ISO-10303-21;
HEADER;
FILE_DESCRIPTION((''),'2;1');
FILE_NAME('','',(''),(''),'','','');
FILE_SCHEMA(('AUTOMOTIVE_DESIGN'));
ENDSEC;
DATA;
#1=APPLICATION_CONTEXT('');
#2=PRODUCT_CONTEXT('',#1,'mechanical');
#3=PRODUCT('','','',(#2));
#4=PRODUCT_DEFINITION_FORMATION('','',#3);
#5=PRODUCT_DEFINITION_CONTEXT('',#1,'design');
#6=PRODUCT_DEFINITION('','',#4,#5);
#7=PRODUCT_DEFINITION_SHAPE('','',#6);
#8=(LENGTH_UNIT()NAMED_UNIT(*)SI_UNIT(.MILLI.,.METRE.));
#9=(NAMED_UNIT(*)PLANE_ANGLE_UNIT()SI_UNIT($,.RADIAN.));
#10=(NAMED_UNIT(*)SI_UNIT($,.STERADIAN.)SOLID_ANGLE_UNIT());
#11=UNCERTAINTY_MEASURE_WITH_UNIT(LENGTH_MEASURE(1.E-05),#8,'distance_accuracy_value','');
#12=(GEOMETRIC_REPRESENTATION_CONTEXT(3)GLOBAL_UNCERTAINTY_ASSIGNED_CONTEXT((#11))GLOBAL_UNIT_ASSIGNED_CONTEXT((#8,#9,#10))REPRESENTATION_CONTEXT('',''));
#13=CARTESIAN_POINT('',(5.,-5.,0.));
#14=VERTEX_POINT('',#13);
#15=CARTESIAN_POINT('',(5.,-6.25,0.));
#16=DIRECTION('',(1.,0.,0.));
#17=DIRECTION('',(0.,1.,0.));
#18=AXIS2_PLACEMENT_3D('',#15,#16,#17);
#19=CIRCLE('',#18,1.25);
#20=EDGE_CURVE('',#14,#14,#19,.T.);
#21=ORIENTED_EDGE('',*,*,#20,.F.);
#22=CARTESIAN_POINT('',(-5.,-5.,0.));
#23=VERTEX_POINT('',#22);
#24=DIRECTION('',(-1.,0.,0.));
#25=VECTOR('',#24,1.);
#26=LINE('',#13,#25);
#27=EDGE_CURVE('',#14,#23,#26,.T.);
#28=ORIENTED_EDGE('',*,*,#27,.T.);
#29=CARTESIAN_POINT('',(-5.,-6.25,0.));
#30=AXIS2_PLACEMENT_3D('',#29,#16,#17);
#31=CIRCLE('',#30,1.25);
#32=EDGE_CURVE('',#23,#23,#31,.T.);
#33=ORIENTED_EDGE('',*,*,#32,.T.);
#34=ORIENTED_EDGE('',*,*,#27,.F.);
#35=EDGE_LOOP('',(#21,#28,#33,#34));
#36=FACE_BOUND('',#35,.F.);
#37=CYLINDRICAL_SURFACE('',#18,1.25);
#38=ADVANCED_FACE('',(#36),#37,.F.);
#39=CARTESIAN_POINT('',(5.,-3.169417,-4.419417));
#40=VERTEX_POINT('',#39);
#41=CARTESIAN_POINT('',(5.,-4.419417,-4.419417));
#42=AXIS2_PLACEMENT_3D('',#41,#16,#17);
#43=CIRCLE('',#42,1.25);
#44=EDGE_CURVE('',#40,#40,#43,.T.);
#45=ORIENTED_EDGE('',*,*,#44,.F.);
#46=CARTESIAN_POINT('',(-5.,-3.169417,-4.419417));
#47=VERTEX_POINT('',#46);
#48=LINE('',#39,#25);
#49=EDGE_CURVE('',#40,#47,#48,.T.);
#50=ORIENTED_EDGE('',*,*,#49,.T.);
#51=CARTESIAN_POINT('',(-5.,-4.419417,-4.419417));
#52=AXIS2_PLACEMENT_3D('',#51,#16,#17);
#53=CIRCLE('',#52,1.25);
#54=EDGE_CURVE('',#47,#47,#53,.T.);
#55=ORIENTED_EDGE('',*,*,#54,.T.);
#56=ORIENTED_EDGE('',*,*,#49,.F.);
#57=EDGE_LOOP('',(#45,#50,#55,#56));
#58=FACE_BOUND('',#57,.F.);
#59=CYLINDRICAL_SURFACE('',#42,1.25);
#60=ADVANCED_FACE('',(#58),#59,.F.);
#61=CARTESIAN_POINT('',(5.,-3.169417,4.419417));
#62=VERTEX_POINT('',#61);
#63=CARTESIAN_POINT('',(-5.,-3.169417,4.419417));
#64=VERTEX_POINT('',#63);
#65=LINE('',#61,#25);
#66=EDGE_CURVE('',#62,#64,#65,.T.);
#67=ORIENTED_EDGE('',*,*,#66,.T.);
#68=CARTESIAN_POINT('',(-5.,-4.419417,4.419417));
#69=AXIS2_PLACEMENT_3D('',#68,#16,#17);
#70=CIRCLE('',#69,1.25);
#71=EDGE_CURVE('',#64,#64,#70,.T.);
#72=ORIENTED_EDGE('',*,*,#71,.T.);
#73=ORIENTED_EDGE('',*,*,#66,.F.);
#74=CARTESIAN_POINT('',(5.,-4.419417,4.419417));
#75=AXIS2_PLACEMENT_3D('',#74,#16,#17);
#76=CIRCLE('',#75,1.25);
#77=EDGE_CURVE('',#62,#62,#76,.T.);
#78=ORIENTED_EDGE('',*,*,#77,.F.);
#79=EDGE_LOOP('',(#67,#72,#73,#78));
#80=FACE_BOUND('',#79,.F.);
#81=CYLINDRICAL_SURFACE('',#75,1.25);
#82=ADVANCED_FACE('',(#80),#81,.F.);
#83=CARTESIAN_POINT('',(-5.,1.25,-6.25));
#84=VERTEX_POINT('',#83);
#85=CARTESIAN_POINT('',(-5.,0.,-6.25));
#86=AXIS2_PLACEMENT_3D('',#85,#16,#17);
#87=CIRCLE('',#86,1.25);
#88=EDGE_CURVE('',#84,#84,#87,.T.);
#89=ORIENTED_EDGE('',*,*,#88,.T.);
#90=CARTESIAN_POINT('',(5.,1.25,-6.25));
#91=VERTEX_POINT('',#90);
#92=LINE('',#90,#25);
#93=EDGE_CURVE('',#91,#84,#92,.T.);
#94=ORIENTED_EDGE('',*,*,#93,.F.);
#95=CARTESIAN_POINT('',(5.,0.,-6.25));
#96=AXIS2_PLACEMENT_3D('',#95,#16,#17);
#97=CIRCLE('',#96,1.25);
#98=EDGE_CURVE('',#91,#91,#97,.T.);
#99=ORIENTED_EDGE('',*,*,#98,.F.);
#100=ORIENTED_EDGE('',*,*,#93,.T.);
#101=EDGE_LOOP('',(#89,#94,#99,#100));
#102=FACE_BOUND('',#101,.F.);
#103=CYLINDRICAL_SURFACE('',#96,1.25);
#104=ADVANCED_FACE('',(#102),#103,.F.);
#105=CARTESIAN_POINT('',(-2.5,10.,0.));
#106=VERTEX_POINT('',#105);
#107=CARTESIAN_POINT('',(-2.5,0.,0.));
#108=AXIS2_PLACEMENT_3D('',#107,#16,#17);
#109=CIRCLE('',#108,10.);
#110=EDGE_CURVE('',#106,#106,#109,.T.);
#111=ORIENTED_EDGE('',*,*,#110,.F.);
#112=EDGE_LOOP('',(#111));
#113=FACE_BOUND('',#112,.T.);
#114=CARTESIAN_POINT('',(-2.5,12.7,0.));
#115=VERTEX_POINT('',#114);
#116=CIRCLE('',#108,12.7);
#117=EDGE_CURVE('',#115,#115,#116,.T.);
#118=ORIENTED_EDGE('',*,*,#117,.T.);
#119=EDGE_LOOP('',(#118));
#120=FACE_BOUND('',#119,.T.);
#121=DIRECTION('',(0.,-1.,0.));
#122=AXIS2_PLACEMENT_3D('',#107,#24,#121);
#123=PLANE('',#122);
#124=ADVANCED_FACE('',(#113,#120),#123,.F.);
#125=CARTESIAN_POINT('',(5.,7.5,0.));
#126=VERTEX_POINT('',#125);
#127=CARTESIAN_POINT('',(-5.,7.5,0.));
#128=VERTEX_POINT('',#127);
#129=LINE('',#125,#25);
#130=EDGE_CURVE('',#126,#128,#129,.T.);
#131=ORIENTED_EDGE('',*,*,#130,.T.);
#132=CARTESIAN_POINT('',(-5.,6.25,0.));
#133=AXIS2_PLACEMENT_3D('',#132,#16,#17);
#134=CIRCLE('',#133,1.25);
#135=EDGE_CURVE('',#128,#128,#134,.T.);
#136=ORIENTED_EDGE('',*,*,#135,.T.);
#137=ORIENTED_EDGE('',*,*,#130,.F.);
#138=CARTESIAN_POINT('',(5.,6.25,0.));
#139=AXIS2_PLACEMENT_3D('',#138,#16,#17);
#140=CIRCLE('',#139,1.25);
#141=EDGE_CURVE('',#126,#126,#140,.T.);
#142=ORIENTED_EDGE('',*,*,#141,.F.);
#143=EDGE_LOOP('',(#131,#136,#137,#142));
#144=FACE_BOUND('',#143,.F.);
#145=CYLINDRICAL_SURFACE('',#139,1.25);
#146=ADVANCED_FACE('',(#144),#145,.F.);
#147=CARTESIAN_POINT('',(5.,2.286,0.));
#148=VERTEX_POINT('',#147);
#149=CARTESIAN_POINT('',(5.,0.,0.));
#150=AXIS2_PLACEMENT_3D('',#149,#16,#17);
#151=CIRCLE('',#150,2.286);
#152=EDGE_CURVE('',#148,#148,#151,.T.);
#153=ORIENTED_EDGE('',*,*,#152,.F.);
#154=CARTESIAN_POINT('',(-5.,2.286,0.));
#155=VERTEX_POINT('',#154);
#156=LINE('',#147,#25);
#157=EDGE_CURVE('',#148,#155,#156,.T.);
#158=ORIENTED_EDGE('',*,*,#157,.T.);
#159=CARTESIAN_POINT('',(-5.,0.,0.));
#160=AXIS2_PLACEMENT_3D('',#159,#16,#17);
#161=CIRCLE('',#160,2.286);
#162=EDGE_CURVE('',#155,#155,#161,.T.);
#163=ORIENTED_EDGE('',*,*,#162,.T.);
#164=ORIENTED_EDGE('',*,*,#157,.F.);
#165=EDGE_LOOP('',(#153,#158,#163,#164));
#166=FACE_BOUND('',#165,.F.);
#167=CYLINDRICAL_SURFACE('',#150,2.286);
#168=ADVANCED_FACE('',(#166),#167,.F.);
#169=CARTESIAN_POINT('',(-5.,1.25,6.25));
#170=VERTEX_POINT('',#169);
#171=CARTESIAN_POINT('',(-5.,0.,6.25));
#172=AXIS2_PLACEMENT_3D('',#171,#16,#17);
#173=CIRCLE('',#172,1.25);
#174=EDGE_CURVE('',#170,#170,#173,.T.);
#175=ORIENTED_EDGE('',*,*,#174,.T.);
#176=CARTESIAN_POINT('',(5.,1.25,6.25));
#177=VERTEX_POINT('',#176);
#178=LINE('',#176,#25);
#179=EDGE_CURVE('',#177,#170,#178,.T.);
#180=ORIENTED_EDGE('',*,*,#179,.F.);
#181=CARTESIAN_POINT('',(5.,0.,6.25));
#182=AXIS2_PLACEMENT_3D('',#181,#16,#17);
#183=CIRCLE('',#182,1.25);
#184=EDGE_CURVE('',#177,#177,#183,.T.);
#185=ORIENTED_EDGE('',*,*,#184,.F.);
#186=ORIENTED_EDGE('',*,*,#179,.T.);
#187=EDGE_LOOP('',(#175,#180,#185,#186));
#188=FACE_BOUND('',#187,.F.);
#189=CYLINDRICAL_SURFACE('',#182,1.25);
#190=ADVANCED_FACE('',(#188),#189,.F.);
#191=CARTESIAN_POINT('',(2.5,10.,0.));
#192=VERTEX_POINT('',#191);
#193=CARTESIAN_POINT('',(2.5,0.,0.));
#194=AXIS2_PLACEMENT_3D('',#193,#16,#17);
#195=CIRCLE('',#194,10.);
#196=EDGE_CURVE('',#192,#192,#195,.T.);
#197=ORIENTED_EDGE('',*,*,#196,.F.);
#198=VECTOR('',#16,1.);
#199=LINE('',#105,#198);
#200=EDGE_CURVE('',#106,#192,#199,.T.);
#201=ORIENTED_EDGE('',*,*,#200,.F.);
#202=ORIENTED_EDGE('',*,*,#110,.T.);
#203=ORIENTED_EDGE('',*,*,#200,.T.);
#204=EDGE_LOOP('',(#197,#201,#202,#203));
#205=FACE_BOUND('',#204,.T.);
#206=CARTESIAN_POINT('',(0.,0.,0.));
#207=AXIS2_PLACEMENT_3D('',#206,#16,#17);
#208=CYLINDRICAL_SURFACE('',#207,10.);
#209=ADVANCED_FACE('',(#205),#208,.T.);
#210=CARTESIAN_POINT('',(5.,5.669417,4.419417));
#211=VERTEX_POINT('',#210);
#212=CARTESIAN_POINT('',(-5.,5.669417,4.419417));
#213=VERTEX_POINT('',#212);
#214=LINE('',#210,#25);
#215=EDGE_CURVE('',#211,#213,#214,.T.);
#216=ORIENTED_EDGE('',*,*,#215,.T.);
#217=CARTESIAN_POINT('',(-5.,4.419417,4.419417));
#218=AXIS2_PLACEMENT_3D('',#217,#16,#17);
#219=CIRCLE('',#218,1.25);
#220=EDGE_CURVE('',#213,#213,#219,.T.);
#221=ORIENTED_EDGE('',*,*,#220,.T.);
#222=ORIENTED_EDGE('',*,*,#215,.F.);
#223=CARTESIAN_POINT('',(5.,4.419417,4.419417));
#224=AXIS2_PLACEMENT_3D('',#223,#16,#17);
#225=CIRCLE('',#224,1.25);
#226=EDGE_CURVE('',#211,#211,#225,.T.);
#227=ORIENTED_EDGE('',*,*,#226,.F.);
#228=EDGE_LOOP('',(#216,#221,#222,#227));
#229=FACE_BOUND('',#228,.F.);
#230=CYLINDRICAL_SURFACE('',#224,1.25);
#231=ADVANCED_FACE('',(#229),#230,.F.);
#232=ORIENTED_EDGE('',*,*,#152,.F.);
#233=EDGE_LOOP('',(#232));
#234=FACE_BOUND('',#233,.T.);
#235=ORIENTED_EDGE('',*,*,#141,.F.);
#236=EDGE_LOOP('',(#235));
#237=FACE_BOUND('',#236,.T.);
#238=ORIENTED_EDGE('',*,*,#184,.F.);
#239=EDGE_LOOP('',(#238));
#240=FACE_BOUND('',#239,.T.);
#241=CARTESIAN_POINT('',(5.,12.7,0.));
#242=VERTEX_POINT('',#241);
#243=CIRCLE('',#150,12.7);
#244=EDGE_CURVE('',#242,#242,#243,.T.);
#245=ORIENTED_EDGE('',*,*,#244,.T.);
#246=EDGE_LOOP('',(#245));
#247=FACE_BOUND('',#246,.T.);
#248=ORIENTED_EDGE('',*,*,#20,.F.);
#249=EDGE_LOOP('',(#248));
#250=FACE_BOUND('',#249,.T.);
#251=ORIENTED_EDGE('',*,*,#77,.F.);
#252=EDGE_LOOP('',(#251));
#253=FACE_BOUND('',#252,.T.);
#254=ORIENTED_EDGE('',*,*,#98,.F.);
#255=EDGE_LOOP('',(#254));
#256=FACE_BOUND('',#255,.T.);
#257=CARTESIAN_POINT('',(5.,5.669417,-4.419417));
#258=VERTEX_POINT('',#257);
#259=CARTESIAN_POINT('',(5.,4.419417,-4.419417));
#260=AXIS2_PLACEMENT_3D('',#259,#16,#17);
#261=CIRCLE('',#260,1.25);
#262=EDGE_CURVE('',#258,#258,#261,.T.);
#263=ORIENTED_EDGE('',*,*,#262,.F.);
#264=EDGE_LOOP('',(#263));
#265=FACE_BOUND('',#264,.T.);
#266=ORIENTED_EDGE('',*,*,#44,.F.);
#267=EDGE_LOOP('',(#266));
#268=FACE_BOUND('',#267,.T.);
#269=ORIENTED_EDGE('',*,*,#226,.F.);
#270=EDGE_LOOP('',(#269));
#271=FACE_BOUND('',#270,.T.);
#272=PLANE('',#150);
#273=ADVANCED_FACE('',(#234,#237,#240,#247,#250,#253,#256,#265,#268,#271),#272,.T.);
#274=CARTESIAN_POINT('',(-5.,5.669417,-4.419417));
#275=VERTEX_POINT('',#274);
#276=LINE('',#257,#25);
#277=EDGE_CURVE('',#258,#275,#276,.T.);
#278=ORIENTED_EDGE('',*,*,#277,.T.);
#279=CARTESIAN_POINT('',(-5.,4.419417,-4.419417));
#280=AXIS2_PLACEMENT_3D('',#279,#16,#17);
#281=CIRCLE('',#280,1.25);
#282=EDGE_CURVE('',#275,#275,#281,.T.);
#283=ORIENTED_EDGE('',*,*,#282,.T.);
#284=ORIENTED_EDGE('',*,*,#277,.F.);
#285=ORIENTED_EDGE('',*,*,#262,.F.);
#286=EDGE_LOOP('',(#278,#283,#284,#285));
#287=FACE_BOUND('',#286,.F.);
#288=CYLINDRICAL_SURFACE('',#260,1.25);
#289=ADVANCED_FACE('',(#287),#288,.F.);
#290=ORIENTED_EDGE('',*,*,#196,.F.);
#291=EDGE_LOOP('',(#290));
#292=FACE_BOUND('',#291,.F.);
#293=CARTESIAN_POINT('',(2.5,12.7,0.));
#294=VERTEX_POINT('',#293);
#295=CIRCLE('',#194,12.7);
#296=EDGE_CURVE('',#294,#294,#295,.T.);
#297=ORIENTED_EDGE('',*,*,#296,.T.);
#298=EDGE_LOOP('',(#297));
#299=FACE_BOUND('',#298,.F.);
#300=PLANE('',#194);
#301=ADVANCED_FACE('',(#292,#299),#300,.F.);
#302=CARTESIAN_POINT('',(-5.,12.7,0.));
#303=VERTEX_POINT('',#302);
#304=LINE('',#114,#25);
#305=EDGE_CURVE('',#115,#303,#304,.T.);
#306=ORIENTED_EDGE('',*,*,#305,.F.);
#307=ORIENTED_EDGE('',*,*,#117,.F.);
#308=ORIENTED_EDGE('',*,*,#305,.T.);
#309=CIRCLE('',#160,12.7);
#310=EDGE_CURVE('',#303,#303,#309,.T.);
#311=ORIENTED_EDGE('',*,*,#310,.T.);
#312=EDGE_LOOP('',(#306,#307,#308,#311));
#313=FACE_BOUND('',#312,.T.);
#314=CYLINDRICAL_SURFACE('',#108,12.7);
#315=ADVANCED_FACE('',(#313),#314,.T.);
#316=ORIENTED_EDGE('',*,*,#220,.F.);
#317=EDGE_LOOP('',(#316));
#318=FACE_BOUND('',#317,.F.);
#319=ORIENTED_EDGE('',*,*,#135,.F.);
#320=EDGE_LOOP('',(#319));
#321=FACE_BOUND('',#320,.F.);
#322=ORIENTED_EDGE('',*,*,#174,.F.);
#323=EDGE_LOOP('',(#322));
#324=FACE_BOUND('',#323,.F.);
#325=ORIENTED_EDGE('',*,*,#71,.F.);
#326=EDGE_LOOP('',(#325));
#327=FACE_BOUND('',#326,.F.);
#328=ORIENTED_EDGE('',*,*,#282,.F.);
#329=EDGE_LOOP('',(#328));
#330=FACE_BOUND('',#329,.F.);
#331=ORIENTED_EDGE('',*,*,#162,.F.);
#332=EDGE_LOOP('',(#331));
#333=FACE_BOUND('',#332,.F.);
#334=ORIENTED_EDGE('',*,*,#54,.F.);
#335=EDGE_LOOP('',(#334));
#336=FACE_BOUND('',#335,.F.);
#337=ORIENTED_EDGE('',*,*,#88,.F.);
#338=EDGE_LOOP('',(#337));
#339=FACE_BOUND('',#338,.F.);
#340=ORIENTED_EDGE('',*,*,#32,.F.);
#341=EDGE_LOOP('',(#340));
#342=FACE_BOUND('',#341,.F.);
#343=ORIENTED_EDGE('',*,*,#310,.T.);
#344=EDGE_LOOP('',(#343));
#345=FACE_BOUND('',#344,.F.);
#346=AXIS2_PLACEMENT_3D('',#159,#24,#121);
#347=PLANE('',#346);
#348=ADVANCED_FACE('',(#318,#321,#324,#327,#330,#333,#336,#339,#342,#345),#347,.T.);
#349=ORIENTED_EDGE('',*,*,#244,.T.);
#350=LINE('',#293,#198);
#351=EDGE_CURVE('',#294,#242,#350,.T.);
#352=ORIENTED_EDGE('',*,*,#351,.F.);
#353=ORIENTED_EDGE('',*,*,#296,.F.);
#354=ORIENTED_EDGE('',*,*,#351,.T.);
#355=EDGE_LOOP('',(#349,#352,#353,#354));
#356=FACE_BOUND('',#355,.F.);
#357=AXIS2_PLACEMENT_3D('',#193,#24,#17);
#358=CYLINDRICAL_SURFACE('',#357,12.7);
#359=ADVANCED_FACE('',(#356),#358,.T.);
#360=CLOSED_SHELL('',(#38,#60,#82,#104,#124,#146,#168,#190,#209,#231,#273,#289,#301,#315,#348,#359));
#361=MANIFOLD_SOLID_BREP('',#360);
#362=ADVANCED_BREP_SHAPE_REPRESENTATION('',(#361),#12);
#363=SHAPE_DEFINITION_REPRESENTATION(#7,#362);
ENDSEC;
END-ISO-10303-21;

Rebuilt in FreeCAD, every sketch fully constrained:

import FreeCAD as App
import Part
import Sketcher

V = App.Vector
Q = App.Units.Quantity

doc = App.newDocument("Part")
body = doc.addObject("PartDesign::Body", "Body")

# Sketch on YZ plane
sketch1 = body.newObject("Sketcher::SketchObject", "Sketch")
sketch1.AttachmentSupport = (doc.getObject("YZ_Plane"), [""])
sketch1.MapMode = "FlatFace"
sketch1.addGeometry(Part.Circle(V(0, 0, 0), V(0, 0, 1), 10), False)
sketch1.addConstraint([
    Sketcher.Constraint("Coincident", 0, 3, -1, 1),
    Sketcher.Constraint("Diameter", 0, Q("20 mm")),
])
pad1 = body.newObject("PartDesign::Pad", "Pad")
pad1.Profile = sketch1
pad1.Length = 2.5

# Sketch on YZ plane
sketch2 = body.newObject("Sketcher::SketchObject", "Sketch001")
sketch2.AttachmentSupport = (doc.getObject("YZ_Plane"), [""])
sketch2.MapMode = "FlatFace"
sketch2.AttachmentOffset = App.Placement(V(0, 0, 2.5), App.Rotation())
sketch2.addGeometry(Part.Circle(V(0, 0, 0), V(0, 0, 1), 13), False)
sketch2.addConstraint([
    Sketcher.Constraint("Coincident", 0, 3, -1, 1),
    Sketcher.Constraint("Diameter", 0, Q("25.4 mm")),
])
pad2 = body.newObject("PartDesign::Pad", "Pad001")
pad2.Profile = sketch2
pad2.Length = 2.5
body2 = doc.addObject("PartDesign::Body", "Body001")
doc.recompute()

body2.BaseFeature = body
doc.recompute()

mirroring = doc.addObject("Part::Mirroring", "Mirroring")
mirroring.Source = body
mirroring.Base = V(0, 0, 0)
mirroring.Normal = V(-1, 0, 0)
body3 = doc.addObject("PartDesign::Body", "Body002")
body3.BaseFeature = mirroring
boolean = body2.newObject("PartDesign::Boolean", "Boolean")
boolean.Type = "Fuse"
boolean.addObjects([body3])
doc.recompute()

# Sketch on YZ plane
sketch3 = body2.newObject("Sketcher::SketchObject", "Sketch002")
sketch3.AttachmentSupport = (doc.getObject("YZ_Plane001"), [""])
sketch3.MapMode = "FlatFace"
sketch3.AttachmentOffset = App.Placement(V(0, 0, 5), App.Rotation())
sketch3.addGeometry(Part.Circle(V(0, 0, 0), V(0, 0, 1), 2.3), False)
sketch3.addConstraint([
    Sketcher.Constraint("Coincident", 0, 3, -1, 1),
    Sketcher.Constraint("Diameter", 0, Q("4.572 mm")),
])
pocket1 = body2.newObject("PartDesign::Pocket", "Pocket")
pocket1.Profile = sketch3
pocket1.Type = "ThroughAll"

# Sketch on YZ plane
sketch4 = body2.newObject("Sketcher::SketchObject", "Sketch003")
sketch4.AttachmentSupport = (doc.getObject("YZ_Plane001"), [""])
sketch4.MapMode = "FlatFace"
sketch4.AttachmentOffset = App.Placement(V(0, 0, 5), App.Rotation())
sketch4.addGeometry([
    Part.Circle(V(0, 6.2, 0), V(0, 0, 1), 1.2),  # 0
    Part.Circle(V(6.2, 0, 0), V(0, 0, 1), 1.2),  # 1
    Part.Circle(V(0, -6.2, 0), V(0, 0, 1), 1.2),  # 2
    Part.Circle(V(-6.2, 0, 0), V(0, 0, 1), 1.2),  # 3
    Part.Circle(V(-4.4, -4.4, 0), V(0, 0, 1), 1.2),  # 4
    Part.Circle(V(4.4, -4.4, 0), V(0, 0, 1), 1.2),  # 5
    Part.Circle(V(-4.4, 4.4, 0), V(0, 0, 1), 1.2),  # 6
    Part.Circle(V(4.4, 4.4, 0), V(0, 0, 1), 1.2),  # 7
], False)
sketch4.addConstraint([
    Sketcher.Constraint("Equal", 0, 1),
    Sketcher.Constraint("Equal", 1, 2),
    Sketcher.Constraint("Equal", 2, 3),
    Sketcher.Constraint("Equal", 3, 4),
    Sketcher.Constraint("Equal", 4, 5),
    Sketcher.Constraint("Equal", 5, 6),
    Sketcher.Constraint("Equal", 6, 7),
    Sketcher.Constraint("Symmetric", 0, 3, 2, 3, -1, 1),
    Sketcher.Constraint("Symmetric", 1, 3, 3, 3, -1, 1),
    Sketcher.Constraint("Symmetric", 5, 3, 6, 3, -1, 1),
    Sketcher.Constraint("Symmetric", 4, 3, 7, 3, -1, 1),
    Sketcher.Constraint("Symmetric", 4, 3, 5, 3, -2),
    Sketcher.Constraint("PointOnObject", 0, 3, -2),
    Sketcher.Constraint("PointOnObject", 1, 3, -1),
    Sketcher.Constraint("Diameter", 0, Q("2.5 mm")),
    Sketcher.Constraint("DistanceY", 2, 3, 0, 3, Q("12.5 mm")),
    Sketcher.Constraint("DistanceX", 3, 3, 1, 3, Q("12.5 mm")),
    Sketcher.Constraint("DistanceX", 4, 3, -1, 1, Q("4.419417 mm")),
    Sketcher.Constraint("DistanceY", 4, 3, -1, 1, Q("4.419417 mm")),
])
pocket2 = body2.newObject("PartDesign::Pocket", "Pocket001")
pocket2.Profile = sketch4
pocket2.Type = "ThroughAll"
mirroring.Visibility = False

doc.recompute()
